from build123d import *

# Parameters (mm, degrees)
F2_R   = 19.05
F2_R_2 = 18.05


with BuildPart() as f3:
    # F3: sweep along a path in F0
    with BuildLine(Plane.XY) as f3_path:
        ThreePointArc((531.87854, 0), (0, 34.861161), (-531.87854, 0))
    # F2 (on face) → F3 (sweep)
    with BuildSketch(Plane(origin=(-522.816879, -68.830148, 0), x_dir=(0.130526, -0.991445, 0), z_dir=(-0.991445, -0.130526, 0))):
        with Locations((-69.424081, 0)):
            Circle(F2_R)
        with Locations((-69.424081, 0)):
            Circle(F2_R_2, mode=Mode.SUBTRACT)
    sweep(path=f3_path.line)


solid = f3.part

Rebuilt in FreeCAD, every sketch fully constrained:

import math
import FreeCAD as App
import Part
import Sketcher

V = App.Vector

doc = App.newDocument("Part")
body = doc.addObject("PartDesign::Body", "Body")

sketch1 = body.newObject("Sketcher::SketchObject", "Sketch")
sketch1.Placement = App.Placement(V(-522.816879, -68.830148, 0), App.Rotation(V(0.130525985, -0.991444889, 0), V(0, 0, 1.000000001), V(-0.991444889, -0.130525985, 0), "ZXY"))
sketch1.addGeometry([
    Part.Circle(V(-69.424081, 0, 0), V(0, 0, 1), 19.05),
    Part.Circle(V(-69.424081, 0, 0), V(0, 0, 1), 18.05),
], False)
sketch1.addConstraint([
    Sketcher.Constraint("Coincident", 1, 3, 0, 3),
    Sketcher.Constraint("PointOnObject", 0, 3, -1),
    Sketcher.Constraint("Diameter", 0, 38.1),
    Sketcher.Constraint("Diameter", 1, 36.1),
    Sketcher.Constraint("DistanceX", 0, 3, -1, 1, 69.424081),
])

sketch2 = body.newObject("Sketcher::SketchObject", "Sketch001")
sketch2.AttachmentSupport = (doc.getObject("XY_Plane"), [""])
sketch2.MapMode = "FlatFace"
sketch2.addGeometry(Part.ArcOfCircle(Part.Circle(V(0, -4040.018644, 0), V(0, 0, 1), 4074.879805), math.radians(82.5), math.radians(97.5)), False)
sketch2.addConstraint([
    Sketcher.Constraint("Symmetric", 0, 1, 0, 2, -1, 1),
    Sketcher.Constraint("PointOnObject", 0, 3, -2),
    Sketcher.Constraint("Radius", 0, 4074.879805),
    Sketcher.Constraint("DistanceX", 0, 2, 0, 1, 1063.75708),
])
doc.recompute()

additivepipe = body.newObject("PartDesign::AdditivePipe", "AdditivePipe")
additivepipe.Profile = sketch1
additivepipe.Spine = (sketch2, ["Edge1"])

doc.recompute()
